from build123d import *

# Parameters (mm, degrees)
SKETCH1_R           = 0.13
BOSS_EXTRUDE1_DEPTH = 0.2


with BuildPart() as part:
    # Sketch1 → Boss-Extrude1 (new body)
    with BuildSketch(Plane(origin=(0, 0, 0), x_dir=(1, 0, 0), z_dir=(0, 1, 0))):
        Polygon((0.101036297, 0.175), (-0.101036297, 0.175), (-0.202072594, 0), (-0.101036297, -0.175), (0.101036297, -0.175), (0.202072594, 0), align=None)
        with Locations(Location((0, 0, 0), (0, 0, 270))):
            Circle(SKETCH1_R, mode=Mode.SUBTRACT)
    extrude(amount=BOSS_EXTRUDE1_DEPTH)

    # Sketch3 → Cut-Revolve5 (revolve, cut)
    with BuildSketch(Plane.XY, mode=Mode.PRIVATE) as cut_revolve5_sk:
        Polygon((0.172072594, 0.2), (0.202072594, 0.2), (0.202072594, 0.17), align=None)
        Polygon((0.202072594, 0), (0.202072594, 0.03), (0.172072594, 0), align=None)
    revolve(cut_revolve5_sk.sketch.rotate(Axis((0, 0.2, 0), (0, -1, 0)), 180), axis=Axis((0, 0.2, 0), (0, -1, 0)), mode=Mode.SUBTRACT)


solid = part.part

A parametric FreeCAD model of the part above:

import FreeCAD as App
import Part
import Sketcher
Q = App.Units.Quantity

doc = App.newDocument("Part")
params = doc.addObject("Spreadsheet::Sheet", "Params")
for row, (alias, value) in enumerate([
    ("sketch1_diameter", "0.26 mm"),
    ("pad1_length", "0.2 mm"),
    ("sketch2_width", "0.03 mm"),
    ("groove_angle", "360 deg"),
], start=1):
    params.set(f"A{row}", alias)
    params.set(f"B{row}", "=" + value)
    params.setAlias(f"B{row}", alias)

body = doc.addObject("PartDesign::Body", "Body")

sketch1 = body.newObject("Sketcher::SketchObject", "Sketch")
sketch1.AttachmentSupport = (doc.getObject("XZ_Plane"), [""])
sketch1.MapMode = "FlatFace"
sketch1.addGeometry([
    Part.LineSegment(App.Vector(0.1, -0.17, 0), App.Vector(-0.1, -0.17, 0)),
    Part.LineSegment(App.Vector(-0.1, -0.17, 0), App.Vector(-0.2, 0, 0)),
    Part.LineSegment(App.Vector(-0.2, 0, 0), App.Vector(-0.1, 0.17, 0)),
    Part.LineSegment(App.Vector(-0.1, 0.17, 0), App.Vector(0.1, 0.17, 0)),
    Part.LineSegment(App.Vector(0.1, 0.17, 0), App.Vector(0.2, 0, 0)),
    Part.LineSegment(App.Vector(0.2, 0, 0), App.Vector(0.1, -0.17, 0)),
    Part.Circle(App.Vector(0, 0, 0), App.Vector(0, 0, 1), 0.13),
], False)
sketch1.addConstraint([
    Sketcher.Constraint("Coincident", 0, 2, 1, 1),
    Sketcher.Constraint("Coincident", 1, 2, 2, 1),
    Sketcher.Constraint("Coincident", 2, 2, 3, 1),
    Sketcher.Constraint("Coincident", 3, 2, 4, 1),
    Sketcher.Constraint("Coincident", 4, 2, 5, 1),
    Sketcher.Constraint("Coincident", 5, 2, 0, 1),
    Sketcher.Constraint("Horizontal", 0),
    Sketcher.Constraint("Horizontal", 3),
    Sketcher.Constraint("Coincident", 6, 3, -1, 1),
    Sketcher.Constraint("Symmetric", 0, 2, 3, 2, -1, 1),
    Sketcher.Constraint("Symmetric", 1, 2, 4, 2, -1, 1),
    Sketcher.Constraint("PointOnObject", 1, 2, -1),
    Sketcher.Constraint("Parallel", 2, 5),
    Sketcher.Constraint("Vertical", 0, 2, 2, 2),
    Sketcher.Constraint("Diameter", 6, Q("0.26 mm")),
    Sketcher.Constraint("Angle", 1, Q("120 deg")),
    Sketcher.Constraint("DistanceY", 0, 2, 2, 2, Q("0.35 mm")),
    Sketcher.Constraint("DistanceX", 0, 2, 0, 1, Q("0.202073 mm")),
])
sketch1.setExpression("Constraints[14]", "Params.sketch1_diameter")
pad1 = body.newObject("PartDesign::Pad", "Pad")
pad1.Profile = sketch1
pad1.setExpression("Length", "Params.pad1_length")
pad1.Reversed = True

sketch2 = body.newObject("Sketcher::SketchObject", "Sketch001")
sketch2.AttachmentSupport = (doc.getObject("XY_Plane"), [""])
sketch2.MapMode = "FlatFace"
sketch2.addGeometry([
    Part.LineSegment(App.Vector(0.202, 0.2, 0), App.Vector(0.172, 0.2, 0)),
    Part.LineSegment(App.Vector(0.172, 0.2, 0), App.Vector(0.202, 0.17, 0)),
    Part.LineSegment(App.Vector(0.202, 0.17, 0), App.Vector(0.202, 0.2, 0)),
    Part.LineSegment(App.Vector(0.202, 0, 0), App.Vector(0.202, 0.03, 0)),
    Part.LineSegment(App.Vector(0.202, 0.03, 0), App.Vector(0.172, 0, 0)),
    Part.LineSegment(App.Vector(0.172, 0, 0), App.Vector(0.202, 0, 0)),
], False)
sketch2.addConstraint([
    Sketcher.Constraint("Coincident", 0, 2, 1, 1),
    Sketcher.Constraint("Coincident", 1, 2, 2, 1),
    Sketcher.Constraint("Coincident", 2, 2, 0, 1),
    Sketcher.Constraint("Coincident", 3, 2, 4, 1),
    Sketcher.Constraint("Coincident", 4, 2, 5, 1),
    Sketcher.Constraint("Coincident", 5, 2, 3, 1),
    Sketcher.Constraint("Horizontal", 0),
    Sketcher.Constraint("Vertical", 2),
    Sketcher.Constraint("Vertical", 3),
    Sketcher.Constraint("Horizontal", 5),
    Sketcher.Constraint("PointOnObject", 4, 2, -1),
    Sketcher.Constraint("Perpendicular", 1, 4),
    Sketcher.Constraint("Vertical", 2, 2, 3, 2),
    Sketcher.Constraint("Vertical", 0, 2, 4, 2),
    Sketcher.Constraint("Equal", 5, 2),
    Sketcher.Constraint("DistanceX", 0, 2, 0, 1, Q("0.03 mm")),
    Sketcher.Constraint("DistanceY", -1, 1, 0, 2, Q("0.2 mm")),
    Sketcher.Constraint("DistanceX", -1, 1, 0, 2, Q("0.172073 mm")),
])
sketch2.setExpression("Constraints[15]", "Params.sketch2_width")
groove = body.newObject("PartDesign::Groove", "Groove")
groove.Profile = sketch2
groove.ReferenceAxis = (sketch2, ["V_Axis"])
groove.setExpression("Angle", "Params.groove_angle")

doc.recompute()
